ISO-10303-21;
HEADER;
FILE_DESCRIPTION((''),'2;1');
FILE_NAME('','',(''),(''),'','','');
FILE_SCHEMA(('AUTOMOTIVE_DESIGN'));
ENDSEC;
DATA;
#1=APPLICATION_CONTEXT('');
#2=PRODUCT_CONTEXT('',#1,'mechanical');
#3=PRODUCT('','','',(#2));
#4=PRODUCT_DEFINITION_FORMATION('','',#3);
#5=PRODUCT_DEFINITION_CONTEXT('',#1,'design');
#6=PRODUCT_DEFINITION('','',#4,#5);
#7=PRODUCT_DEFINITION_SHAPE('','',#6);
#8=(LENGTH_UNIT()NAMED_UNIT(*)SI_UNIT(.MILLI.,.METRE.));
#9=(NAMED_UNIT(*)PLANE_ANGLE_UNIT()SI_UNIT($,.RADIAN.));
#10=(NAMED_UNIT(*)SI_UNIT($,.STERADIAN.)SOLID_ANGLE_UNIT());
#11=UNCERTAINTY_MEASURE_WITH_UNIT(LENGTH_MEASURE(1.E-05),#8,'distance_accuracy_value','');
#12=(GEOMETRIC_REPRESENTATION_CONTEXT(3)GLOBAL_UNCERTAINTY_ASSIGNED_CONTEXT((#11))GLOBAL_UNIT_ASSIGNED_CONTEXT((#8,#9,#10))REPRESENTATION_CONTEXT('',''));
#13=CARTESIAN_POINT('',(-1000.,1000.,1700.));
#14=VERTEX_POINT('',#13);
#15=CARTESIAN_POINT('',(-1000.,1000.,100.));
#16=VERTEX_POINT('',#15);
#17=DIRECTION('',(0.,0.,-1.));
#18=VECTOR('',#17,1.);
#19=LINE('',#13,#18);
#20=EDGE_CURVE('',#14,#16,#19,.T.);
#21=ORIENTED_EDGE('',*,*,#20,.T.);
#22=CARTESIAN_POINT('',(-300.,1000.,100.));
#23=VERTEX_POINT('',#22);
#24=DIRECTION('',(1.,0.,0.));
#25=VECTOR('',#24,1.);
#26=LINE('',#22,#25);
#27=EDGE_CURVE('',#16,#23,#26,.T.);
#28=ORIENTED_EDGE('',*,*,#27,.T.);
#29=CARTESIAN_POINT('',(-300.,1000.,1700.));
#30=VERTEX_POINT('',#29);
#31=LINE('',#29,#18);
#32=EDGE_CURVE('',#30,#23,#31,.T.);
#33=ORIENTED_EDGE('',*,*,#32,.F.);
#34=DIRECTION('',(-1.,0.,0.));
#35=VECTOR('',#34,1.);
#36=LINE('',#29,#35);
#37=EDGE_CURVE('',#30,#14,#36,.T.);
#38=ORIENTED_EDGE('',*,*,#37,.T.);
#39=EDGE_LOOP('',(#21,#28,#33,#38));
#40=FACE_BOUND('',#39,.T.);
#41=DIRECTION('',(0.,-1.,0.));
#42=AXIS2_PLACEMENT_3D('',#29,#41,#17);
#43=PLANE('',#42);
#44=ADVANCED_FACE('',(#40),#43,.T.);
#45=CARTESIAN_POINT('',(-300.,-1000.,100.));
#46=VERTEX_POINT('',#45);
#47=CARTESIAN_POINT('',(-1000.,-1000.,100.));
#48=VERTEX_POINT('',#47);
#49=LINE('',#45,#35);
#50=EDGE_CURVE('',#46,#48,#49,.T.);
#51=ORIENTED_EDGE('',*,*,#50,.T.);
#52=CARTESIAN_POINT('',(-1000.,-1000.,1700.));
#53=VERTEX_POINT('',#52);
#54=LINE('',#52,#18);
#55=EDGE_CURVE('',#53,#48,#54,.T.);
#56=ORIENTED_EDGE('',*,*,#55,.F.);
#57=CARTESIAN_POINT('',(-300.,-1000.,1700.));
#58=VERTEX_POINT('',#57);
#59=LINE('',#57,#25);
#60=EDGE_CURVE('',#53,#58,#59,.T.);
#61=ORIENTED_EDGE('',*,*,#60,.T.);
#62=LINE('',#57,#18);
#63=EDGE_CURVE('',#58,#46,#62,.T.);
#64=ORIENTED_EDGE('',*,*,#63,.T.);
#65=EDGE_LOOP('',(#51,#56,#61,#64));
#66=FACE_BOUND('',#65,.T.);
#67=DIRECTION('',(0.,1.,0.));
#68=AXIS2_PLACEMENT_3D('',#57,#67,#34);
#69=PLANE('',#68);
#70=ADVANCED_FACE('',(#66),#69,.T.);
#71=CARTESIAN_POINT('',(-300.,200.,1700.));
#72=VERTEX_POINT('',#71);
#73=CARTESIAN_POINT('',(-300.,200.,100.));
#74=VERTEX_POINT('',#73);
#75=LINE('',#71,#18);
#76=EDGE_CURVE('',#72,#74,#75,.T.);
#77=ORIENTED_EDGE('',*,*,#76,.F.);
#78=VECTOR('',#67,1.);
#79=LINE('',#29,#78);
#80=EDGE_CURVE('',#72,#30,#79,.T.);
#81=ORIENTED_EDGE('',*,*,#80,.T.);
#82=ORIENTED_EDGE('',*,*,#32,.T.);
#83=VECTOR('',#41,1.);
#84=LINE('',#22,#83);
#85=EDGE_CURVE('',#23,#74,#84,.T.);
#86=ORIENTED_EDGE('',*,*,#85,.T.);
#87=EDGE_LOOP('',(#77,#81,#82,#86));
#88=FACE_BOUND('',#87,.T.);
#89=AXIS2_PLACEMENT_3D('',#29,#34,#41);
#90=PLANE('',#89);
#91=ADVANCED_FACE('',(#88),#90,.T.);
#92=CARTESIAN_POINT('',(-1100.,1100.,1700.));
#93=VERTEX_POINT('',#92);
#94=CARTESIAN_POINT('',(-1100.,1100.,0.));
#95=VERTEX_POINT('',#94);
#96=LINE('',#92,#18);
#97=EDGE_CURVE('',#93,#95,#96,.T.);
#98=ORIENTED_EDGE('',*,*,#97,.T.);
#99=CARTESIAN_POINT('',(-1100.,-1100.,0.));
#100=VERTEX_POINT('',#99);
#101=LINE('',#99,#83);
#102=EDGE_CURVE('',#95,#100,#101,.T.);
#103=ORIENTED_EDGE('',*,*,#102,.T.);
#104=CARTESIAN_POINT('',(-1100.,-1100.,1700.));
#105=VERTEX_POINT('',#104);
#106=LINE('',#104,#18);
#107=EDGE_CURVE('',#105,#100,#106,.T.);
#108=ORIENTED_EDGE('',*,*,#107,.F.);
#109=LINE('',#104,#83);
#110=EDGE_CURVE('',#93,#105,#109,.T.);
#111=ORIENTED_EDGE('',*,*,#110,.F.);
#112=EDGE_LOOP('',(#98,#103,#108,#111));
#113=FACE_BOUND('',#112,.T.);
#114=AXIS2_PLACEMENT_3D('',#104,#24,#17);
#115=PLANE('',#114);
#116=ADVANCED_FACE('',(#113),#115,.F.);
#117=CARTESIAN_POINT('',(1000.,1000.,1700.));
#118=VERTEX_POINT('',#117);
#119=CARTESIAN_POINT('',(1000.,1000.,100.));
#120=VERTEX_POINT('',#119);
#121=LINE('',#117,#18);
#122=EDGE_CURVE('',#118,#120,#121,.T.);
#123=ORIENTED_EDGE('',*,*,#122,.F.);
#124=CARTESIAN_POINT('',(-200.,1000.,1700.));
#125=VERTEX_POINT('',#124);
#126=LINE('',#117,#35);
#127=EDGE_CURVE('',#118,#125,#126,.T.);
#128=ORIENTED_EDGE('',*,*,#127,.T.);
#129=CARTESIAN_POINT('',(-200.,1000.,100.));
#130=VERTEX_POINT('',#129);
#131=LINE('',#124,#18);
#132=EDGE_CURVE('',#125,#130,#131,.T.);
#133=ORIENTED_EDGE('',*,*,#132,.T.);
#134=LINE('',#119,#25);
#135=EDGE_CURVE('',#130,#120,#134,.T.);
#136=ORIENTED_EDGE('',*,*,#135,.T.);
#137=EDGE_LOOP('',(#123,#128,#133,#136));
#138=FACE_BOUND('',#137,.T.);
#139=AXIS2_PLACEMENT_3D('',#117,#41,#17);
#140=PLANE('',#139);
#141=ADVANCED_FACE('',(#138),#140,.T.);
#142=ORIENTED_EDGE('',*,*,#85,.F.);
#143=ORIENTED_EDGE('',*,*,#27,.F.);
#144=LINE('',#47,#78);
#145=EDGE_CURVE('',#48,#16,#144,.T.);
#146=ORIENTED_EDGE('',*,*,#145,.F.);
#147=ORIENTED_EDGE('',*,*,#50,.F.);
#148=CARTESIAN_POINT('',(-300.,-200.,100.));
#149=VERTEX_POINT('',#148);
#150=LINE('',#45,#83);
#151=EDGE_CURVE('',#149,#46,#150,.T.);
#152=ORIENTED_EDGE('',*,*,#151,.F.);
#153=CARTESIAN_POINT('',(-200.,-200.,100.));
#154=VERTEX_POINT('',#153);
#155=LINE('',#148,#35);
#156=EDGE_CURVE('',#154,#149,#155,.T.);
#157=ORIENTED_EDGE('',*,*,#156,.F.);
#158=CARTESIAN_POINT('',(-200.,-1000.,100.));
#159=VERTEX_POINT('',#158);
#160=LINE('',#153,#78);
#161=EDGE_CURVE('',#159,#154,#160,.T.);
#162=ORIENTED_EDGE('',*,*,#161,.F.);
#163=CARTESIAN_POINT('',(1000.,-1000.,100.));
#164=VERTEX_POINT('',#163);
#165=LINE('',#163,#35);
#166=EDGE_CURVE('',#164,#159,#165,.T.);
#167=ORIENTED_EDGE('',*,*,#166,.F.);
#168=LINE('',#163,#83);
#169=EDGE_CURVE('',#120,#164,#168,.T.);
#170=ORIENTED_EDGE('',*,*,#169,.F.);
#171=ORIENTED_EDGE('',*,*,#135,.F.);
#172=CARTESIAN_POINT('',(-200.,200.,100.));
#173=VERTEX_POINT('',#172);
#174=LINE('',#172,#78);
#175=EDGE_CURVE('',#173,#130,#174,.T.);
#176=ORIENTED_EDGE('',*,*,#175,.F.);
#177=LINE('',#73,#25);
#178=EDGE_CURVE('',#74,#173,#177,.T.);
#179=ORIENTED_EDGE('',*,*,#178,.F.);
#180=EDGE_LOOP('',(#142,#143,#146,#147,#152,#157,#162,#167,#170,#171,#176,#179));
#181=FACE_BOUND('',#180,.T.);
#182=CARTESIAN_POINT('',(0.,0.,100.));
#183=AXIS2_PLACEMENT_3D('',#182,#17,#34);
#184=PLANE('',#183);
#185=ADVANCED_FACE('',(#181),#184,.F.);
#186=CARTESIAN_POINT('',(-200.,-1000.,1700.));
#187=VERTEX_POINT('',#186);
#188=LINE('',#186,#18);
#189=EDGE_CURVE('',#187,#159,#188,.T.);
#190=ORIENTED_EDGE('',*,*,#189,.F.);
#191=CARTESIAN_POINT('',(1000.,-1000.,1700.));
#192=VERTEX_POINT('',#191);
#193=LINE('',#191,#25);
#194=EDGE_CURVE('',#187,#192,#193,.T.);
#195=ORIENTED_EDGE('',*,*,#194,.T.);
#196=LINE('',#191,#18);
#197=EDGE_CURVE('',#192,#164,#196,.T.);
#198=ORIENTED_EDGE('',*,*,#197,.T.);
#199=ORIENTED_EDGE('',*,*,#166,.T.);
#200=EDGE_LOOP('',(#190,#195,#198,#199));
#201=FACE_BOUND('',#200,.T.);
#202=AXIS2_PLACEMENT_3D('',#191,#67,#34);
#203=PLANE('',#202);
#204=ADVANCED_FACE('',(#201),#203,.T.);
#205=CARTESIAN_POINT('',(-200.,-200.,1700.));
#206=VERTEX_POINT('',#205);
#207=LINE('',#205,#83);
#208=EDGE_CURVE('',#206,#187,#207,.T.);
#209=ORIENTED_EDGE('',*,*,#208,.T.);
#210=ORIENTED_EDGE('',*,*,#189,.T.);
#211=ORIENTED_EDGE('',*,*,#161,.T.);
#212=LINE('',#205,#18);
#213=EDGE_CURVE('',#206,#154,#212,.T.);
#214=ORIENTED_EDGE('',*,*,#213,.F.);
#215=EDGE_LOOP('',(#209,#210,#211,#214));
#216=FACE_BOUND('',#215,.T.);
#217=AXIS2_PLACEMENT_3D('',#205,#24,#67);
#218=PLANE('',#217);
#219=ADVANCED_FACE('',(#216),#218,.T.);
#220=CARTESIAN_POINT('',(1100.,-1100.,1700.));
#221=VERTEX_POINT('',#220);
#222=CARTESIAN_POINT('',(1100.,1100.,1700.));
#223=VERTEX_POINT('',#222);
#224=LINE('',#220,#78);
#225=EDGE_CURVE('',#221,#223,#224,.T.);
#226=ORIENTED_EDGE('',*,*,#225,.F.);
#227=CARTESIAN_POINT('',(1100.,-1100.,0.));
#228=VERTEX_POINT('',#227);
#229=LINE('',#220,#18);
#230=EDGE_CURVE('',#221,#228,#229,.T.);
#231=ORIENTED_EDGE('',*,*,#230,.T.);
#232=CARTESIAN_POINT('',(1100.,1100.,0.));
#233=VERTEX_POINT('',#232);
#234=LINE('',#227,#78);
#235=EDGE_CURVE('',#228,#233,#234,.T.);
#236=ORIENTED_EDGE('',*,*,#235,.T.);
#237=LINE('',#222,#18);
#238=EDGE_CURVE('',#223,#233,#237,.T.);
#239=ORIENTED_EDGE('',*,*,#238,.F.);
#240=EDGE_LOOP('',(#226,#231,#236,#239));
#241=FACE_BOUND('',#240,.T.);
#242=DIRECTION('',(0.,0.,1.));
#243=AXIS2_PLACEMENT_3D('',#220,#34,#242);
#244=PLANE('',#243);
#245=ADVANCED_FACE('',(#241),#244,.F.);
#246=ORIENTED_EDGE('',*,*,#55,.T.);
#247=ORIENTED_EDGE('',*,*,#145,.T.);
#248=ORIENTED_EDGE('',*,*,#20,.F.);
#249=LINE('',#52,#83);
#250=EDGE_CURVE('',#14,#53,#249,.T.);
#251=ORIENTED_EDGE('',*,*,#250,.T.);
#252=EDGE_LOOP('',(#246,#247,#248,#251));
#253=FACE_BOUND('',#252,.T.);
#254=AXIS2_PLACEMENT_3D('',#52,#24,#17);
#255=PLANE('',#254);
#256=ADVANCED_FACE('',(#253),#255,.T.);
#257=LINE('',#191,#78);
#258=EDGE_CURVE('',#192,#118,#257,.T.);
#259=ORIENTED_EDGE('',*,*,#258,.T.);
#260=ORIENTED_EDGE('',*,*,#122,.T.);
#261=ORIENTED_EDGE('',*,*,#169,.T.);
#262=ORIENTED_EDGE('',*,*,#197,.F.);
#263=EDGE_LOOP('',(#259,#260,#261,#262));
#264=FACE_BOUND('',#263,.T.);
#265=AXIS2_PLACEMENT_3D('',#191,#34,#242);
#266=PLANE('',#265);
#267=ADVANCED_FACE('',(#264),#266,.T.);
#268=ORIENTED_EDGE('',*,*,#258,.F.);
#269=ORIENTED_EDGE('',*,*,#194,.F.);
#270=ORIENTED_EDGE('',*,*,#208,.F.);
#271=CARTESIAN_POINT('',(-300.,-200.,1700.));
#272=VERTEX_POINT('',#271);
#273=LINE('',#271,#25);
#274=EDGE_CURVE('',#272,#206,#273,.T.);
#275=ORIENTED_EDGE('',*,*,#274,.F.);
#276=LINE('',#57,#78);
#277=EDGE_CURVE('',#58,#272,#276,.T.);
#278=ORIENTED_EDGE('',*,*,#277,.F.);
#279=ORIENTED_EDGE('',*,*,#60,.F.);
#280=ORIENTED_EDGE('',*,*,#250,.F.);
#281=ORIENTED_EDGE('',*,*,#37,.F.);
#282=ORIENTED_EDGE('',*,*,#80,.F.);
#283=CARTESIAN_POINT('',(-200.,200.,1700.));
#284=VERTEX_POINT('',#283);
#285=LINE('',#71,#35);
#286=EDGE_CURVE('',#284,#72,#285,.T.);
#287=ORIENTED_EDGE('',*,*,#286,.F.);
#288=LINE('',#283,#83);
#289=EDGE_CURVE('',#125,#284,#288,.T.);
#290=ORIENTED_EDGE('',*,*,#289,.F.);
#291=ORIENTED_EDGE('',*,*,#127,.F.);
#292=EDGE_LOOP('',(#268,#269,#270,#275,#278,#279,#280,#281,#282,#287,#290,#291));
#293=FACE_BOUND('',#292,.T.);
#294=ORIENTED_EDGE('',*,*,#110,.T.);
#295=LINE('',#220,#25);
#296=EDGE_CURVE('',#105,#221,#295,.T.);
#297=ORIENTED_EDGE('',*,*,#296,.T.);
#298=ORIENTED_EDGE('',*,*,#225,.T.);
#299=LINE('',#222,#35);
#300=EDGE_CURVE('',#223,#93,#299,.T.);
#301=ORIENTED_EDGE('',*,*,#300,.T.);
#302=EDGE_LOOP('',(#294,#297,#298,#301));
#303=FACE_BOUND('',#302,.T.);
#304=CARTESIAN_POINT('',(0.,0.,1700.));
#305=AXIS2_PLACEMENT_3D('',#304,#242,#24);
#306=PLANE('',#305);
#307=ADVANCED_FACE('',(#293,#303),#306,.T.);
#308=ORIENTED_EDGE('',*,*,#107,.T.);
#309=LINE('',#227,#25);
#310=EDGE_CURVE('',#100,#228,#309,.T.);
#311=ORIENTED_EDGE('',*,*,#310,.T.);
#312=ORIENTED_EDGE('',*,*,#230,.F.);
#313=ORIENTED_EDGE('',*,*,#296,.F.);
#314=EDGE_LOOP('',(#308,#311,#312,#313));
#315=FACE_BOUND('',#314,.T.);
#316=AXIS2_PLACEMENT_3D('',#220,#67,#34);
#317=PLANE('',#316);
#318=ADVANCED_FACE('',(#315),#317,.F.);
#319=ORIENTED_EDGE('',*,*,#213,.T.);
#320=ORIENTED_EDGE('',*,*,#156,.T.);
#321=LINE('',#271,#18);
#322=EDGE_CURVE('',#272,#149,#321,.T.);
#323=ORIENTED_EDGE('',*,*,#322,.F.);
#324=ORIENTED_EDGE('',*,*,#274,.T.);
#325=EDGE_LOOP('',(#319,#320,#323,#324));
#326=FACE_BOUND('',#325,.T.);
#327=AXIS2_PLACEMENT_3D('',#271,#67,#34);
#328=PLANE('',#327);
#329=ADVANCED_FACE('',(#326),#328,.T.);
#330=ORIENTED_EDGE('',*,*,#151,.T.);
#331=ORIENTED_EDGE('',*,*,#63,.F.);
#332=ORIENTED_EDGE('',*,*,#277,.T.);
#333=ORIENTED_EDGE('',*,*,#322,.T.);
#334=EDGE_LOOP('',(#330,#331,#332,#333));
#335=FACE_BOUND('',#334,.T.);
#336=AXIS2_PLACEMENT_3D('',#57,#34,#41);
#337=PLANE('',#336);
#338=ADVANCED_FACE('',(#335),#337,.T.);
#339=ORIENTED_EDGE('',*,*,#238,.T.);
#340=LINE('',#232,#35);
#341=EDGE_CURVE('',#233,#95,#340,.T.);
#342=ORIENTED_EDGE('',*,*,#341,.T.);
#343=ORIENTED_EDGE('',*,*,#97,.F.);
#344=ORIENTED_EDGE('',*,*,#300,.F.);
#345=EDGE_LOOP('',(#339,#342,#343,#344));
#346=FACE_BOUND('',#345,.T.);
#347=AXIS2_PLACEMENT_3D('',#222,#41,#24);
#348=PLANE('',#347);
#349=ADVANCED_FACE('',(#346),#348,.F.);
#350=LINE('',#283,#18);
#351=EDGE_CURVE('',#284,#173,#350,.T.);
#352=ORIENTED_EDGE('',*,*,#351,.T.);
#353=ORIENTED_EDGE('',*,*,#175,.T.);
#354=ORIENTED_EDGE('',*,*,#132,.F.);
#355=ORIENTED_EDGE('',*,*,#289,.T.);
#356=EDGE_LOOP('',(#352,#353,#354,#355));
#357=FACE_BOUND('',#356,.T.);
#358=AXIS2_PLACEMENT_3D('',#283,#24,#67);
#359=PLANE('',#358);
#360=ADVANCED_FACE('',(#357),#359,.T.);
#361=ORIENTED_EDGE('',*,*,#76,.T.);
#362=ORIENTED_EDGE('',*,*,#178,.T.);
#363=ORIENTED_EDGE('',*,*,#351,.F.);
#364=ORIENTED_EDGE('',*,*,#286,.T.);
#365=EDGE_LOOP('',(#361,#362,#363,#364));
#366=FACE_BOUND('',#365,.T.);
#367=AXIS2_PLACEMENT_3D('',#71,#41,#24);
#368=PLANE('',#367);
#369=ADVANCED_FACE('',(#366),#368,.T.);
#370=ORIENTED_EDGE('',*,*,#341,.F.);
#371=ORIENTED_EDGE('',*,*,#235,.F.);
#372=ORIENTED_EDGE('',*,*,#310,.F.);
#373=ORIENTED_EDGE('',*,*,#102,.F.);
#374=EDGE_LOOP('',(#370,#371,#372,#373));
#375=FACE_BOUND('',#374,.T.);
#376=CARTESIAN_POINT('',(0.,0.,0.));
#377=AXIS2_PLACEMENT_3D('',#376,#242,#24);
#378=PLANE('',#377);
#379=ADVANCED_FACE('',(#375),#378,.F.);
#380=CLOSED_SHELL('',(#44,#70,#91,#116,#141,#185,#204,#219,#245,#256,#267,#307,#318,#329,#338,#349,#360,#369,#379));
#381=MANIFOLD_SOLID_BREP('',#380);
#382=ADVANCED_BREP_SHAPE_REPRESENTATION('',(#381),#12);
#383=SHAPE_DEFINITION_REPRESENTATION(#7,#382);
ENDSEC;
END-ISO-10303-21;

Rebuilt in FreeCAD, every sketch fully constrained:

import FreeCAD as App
import Part
import Sketcher
from FreeCAD import Vector
Q = App.Units.Quantity


def add_polygon(sketch, points):
    """Adds a closed chain of lines whose ends are joined by coincident constraints."""
    first, n = sketch.GeometryCount, len(points)
    for a, b in zip(points, points[1:] + points[:1]):
        sketch.addGeometry(Part.LineSegment(App.Vector(*a, 0), App.Vector(*b, 0)), False)
    for i in range(n):
        sketch.addConstraint(Sketcher.Constraint("Coincident", first + i, 2, first + (i + 1) % n, 1))

doc = App.newDocument("Part")
body = doc.addObject("PartDesign::Body", "Body")

# Sketch on XY plane
sketch1 = body.newObject("Sketcher::SketchObject", "Sketch")
sketch1.AttachmentSupport = (doc.getObject("XY_Plane"), [""])
sketch1.MapMode = "FlatFace"
add_polygon(sketch1, [(-1100, 1100), (-1100, -1100), (1100, -1100), (1100, 1100)])  # lines 0-3
add_polygon(sketch1, [(1000, 1000), (1000, -1000), (-200, -1000), (-200, -200), (-300, -200), (-300, -1000), (-1000, -1000), (-1000, 1000), (-300, 1000), (-300, 200), (-200, 200), (-200, 1000)])  # lines 4-15
sketch1.addConstraint(Sketcher.Constraint("Vertical", 0))
sketch1.addConstraint(Sketcher.Constraint("Horizontal", 1))
sketch1.addConstraint(Sketcher.Constraint("Vertical", 2))
sketch1.addConstraint(Sketcher.Constraint("Horizontal", 3))
sketch1.addConstraint(Sketcher.Constraint("Vertical", 4))
sketch1.addConstraint(Sketcher.Constraint("Horizontal", 5))
sketch1.addConstraint(Sketcher.Constraint("Vertical", 6))
sketch1.addConstraint(Sketcher.Constraint("Horizontal", 7))
sketch1.addConstraint(Sketcher.Constraint("Vertical", 8))
sketch1.addConstraint(Sketcher.Constraint("Horizontal", 9))
sketch1.addConstraint(Sketcher.Constraint("Vertical", 10))
sketch1.addConstraint(Sketcher.Constraint("Horizontal", 11))
sketch1.addConstraint(Sketcher.Constraint("Vertical", 12))
sketch1.addConstraint(Sketcher.Constraint("Horizontal", 13))
sketch1.addConstraint(Sketcher.Constraint("Vertical", 14))
sketch1.addConstraint(Sketcher.Constraint("Horizontal", 15))
sketch1.addConstraint(Sketcher.Constraint("Symmetric", 0, 2, 2, 2, -1, 1))
sketch1.addConstraint(Sketcher.Constraint("Symmetric", 4, 2, 10, 2, -1, 1))
sketch1.addConstraint(Sketcher.Constraint("Symmetric", 8, 2, 11, 2, -1))
sketch1.addConstraint(Sketcher.Constraint("Symmetric", 6, 2, 13, 2, -1))
sketch1.addConstraint(Sketcher.Constraint("Horizontal", 11, 2, 14, 2))
sketch1.addConstraint(Sketcher.Constraint("Equal", 3, 0))
sketch1.addConstraint(Sketcher.Constraint("DistanceX", 1, 1, 1, 2, Q("2200 mm")))
sketch1.addConstraint(Sketcher.Constraint("DistanceX", 5, 2, 5, 1, Q("1200 mm")))
sketch1.addConstraint(Sketcher.Constraint("DistanceX", 7, 2, 7, 1, Q("100 mm")))
sketch1.addConstraint(Sketcher.Constraint("DistanceX", 9, 2, 9, 1, Q("700 mm")))
sketch1.addConstraint(Sketcher.Constraint("DistanceY", 4, 2, 4, 1, Q("2000 mm")))
sketch1.addConstraint(Sketcher.Constraint("DistanceY", 6, 1, 6, 2, Q("800 mm")))
pad1 = body.newObject("PartDesign::Pad", "Pad")
pad1.Profile = sketch1
pad1.Length = 1700

# Sketch on XY plane
sketch2 = body.newObject("Sketcher::SketchObject", "Sketch001")
sketch2.AttachmentSupport = (doc.getObject("XY_Plane"), [""])
sketch2.MapMode = "FlatFace"
add_polygon(sketch2, [(1100, 1100), (1100, -1100), (-1100, -1100), (-1100, 1100)])  # lines 0-3
sketch2.addConstraint(Sketcher.Constraint("Vertical", 0))
sketch2.addConstraint(Sketcher.Constraint("Horizontal", 1))
sketch2.addConstraint(Sketcher.Constraint("Vertical", 2))
sketch2.addConstraint(Sketcher.Constraint("Horizontal", 3))
sketch2.addConstraint(Sketcher.Constraint("Symmetric", 0, 2, 2, 2, -1, 1))
sketch2.addConstraint(Sketcher.Constraint("Equal", 3, 0))
sketch2.addConstraint(Sketcher.Constraint("DistanceX", 1, 2, 1, 1, Q("2200 mm")))
pad2 = body.newObject("PartDesign::Pad", "Pad001")
pad2.Profile = sketch2
pad2.Length = 100

doc.recompute()
